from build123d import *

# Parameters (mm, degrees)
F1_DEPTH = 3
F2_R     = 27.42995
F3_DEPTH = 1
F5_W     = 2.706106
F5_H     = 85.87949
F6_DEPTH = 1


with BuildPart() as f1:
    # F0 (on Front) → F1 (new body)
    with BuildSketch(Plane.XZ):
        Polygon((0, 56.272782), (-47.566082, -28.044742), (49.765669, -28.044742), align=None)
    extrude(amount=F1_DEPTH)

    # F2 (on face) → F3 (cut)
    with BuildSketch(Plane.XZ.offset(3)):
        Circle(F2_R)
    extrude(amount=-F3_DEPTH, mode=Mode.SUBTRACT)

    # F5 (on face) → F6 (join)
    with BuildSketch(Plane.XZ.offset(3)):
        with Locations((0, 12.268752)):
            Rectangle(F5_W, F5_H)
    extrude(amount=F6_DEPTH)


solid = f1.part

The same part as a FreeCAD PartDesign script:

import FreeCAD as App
import Part
import Sketcher

V = App.Vector
Q = App.Units.Quantity


def add_polygon(sketch, points):
    """Adds a closed chain of lines whose ends are joined by coincident constraints."""
    first, n = sketch.GeometryCount, len(points)
    for a, b in zip(points, points[1:] + points[:1]):
        sketch.addGeometry(Part.LineSegment(App.Vector(*a, 0), App.Vector(*b, 0)), False)
    for i in range(n):
        sketch.addConstraint(Sketcher.Constraint("Coincident", first + i, 2, first + (i + 1) % n, 1))

doc = App.newDocument("Part")
body = doc.addObject("PartDesign::Body", "Body")

# Sketch on XZ plane
sketch1 = doc.addObject("Sketcher::SketchObject", "Sketch")
body.addObject(sketch1)
sketch1.AttachmentSupport = (doc.XZ_Plane, [""])
sketch1.MapMode = "FlatFace"
add_polygon(sketch1, [(0, 56), (-48, -28), (50, -28)])  # lines 0-2
sketch1.addConstraint([
    Sketcher.Constraint("Horizontal", 1),
    Sketcher.Constraint("PointOnObject", 2, 2, -2),
    Sketcher.Constraint("DistanceX", 1, 1, 1, 2, Q("97.331751 mm")),
    Sketcher.Constraint("Distance", 0, Q("96.808972 mm")),
    Sketcher.Constraint("Distance", 2, Q("97.908461 mm")),
    Sketcher.Constraint("DistanceY", 0, 2, -1, 1, Q("28.044742 mm")),
])
pad1 = doc.addObject("PartDesign::Pad", "Pad")
body.addObject(pad1)
pad1.Profile = sketch1
pad1.Length = 3

# Sketch on XZ plane
sketch2 = doc.addObject("Sketcher::SketchObject", "Sketch001")
body.addObject(sketch2)
sketch2.AttachmentSupport = (doc.XZ_Plane, [""])
sketch2.MapMode = "FlatFace"
sketch2.AttachmentOffset = App.Placement(V(0, 0, 3), App.Rotation())
sketch2.addGeometry(Part.Circle(V(0, 0, 0), V(0, 0, 1), 27), False)
sketch2.addConstraint([
    Sketcher.Constraint("Coincident", 0, 3, -1, 1),
    Sketcher.Constraint("Diameter", 0, Q("54.8599 mm")),
])
pocket1 = doc.addObject("PartDesign::Pocket", "Pocket")
body.addObject(pocket1)
pocket1.Profile = sketch2
pocket1.Length = 1

# Sketch on XZ plane
sketch3 = doc.addObject("Sketcher::SketchObject", "Sketch002")
body.addObject(sketch3)
sketch3.AttachmentSupport = (doc.XZ_Plane, [""])
sketch3.MapMode = "FlatFace"
sketch3.AttachmentOffset = App.Placement(V(0, 0, 3), App.Rotation())
add_polygon(sketch3, [(-1.4, 55.2), (-1.4, -30.7), (1.4, -30.7), (1.4, 55.2)])  # lines 0-3
sketch3.addConstraint([
    Sketcher.Constraint("Vertical", 0),
    Sketcher.Constraint("Horizontal", 1),
    Sketcher.Constraint("Vertical", 2),
    Sketcher.Constraint("Horizontal", 3),
    Sketcher.Constraint("DistanceY", 0, 2, 0, 1, Q("85.87949 mm")),
    Sketcher.Constraint("DistanceX", 1, 1, 1, 2, Q("2.706106 mm")),
    Sketcher.Constraint("DistanceX", 0, 2, -1, 1, Q("1.353053 mm")),
    Sketcher.Constraint("DistanceY", 0, 2, -1, 1, Q("30.670993 mm")),
])
pad2 = doc.addObject("PartDesign::Pad", "Pad001")
body.addObject(pad2)
pad2.Profile = sketch3
pad2.Length = 1

doc.recompute()
